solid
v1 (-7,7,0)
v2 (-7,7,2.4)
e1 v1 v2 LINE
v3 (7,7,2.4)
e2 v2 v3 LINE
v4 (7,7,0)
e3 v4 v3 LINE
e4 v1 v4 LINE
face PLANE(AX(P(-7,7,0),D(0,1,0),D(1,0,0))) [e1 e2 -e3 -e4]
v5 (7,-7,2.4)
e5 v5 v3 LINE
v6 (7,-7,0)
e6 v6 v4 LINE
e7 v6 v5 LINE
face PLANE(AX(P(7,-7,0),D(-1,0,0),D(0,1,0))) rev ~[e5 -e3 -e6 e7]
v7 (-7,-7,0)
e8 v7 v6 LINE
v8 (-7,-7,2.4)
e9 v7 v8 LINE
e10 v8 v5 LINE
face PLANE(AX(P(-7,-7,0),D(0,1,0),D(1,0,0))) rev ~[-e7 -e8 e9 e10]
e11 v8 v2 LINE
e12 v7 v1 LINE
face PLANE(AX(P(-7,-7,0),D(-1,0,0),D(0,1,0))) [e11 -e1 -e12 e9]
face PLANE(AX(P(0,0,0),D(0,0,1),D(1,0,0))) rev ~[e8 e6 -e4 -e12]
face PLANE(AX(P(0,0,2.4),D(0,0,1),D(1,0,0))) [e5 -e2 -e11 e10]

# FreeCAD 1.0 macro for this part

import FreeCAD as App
import Part
import Sketcher
from FreeCAD import Vector

doc = App.newDocument("Part")
params = doc.addObject("Spreadsheet::Sheet", "Params")
for row, (alias, value) in enumerate([
    ("sketch1_width", "14 mm"),
    ("pad1_length", "2.4 mm"),
], start=1):
    params.set(f"A{row}", alias)
    params.set(f"B{row}", "=" + value)
    params.setAlias(f"B{row}", alias)

body = doc.addObject("PartDesign::Body", "Body")

# Sketch on XY plane
sketch1 = doc.addObject("Sketcher::SketchObject", "Sketch")
body.addObject(sketch1)
sketch1.AttachmentSupport = (doc.XY_Plane, [""])
sketch1.MapMode = "FlatFace"
sketch1.addGeometry([
    Part.LineSegment(Vector(-7, 7, 0), Vector(-7, -7, 0)),
    Part.LineSegment(Vector(-7, -7, 0), Vector(7, -7, 0)),
    Part.LineSegment(Vector(7, -7, 0), Vector(7, 7, 0)),
    Part.LineSegment(Vector(7, 7, 0), Vector(-7, 7, 0)),
], False)
sketch1.addConstraint([
    Sketcher.Constraint("Coincident", 0, 2, 1, 1),
    Sketcher.Constraint("Coincident", 1, 2, 2, 1),
    Sketcher.Constraint("Coincident", 2, 2, 3, 1),
    Sketcher.Constraint("Coincident", 3, 2, 0, 1),
    Sketcher.Constraint("Vertical", 0),
    Sketcher.Constraint("Horizontal", 1),
    Sketcher.Constraint("Vertical", 2),
    Sketcher.Constraint("Horizontal", 3),
    Sketcher.Constraint("Symmetric", 0, 2, 2, 2, -1, 1),
    Sketcher.Constraint("Equal", 3, 0),
    Sketcher.Constraint("DistanceX", 1, 1, 1, 2, 14.0),
])
sketch1.setExpression("Constraints[10]", "Params.sketch1_width")
pad1 = doc.addObject("PartDesign::Pad", "Pad")
body.addObject(pad1)
pad1.Profile = sketch1
pad1.setExpression("Length", "Params.pad1_length")

doc.recompute()
